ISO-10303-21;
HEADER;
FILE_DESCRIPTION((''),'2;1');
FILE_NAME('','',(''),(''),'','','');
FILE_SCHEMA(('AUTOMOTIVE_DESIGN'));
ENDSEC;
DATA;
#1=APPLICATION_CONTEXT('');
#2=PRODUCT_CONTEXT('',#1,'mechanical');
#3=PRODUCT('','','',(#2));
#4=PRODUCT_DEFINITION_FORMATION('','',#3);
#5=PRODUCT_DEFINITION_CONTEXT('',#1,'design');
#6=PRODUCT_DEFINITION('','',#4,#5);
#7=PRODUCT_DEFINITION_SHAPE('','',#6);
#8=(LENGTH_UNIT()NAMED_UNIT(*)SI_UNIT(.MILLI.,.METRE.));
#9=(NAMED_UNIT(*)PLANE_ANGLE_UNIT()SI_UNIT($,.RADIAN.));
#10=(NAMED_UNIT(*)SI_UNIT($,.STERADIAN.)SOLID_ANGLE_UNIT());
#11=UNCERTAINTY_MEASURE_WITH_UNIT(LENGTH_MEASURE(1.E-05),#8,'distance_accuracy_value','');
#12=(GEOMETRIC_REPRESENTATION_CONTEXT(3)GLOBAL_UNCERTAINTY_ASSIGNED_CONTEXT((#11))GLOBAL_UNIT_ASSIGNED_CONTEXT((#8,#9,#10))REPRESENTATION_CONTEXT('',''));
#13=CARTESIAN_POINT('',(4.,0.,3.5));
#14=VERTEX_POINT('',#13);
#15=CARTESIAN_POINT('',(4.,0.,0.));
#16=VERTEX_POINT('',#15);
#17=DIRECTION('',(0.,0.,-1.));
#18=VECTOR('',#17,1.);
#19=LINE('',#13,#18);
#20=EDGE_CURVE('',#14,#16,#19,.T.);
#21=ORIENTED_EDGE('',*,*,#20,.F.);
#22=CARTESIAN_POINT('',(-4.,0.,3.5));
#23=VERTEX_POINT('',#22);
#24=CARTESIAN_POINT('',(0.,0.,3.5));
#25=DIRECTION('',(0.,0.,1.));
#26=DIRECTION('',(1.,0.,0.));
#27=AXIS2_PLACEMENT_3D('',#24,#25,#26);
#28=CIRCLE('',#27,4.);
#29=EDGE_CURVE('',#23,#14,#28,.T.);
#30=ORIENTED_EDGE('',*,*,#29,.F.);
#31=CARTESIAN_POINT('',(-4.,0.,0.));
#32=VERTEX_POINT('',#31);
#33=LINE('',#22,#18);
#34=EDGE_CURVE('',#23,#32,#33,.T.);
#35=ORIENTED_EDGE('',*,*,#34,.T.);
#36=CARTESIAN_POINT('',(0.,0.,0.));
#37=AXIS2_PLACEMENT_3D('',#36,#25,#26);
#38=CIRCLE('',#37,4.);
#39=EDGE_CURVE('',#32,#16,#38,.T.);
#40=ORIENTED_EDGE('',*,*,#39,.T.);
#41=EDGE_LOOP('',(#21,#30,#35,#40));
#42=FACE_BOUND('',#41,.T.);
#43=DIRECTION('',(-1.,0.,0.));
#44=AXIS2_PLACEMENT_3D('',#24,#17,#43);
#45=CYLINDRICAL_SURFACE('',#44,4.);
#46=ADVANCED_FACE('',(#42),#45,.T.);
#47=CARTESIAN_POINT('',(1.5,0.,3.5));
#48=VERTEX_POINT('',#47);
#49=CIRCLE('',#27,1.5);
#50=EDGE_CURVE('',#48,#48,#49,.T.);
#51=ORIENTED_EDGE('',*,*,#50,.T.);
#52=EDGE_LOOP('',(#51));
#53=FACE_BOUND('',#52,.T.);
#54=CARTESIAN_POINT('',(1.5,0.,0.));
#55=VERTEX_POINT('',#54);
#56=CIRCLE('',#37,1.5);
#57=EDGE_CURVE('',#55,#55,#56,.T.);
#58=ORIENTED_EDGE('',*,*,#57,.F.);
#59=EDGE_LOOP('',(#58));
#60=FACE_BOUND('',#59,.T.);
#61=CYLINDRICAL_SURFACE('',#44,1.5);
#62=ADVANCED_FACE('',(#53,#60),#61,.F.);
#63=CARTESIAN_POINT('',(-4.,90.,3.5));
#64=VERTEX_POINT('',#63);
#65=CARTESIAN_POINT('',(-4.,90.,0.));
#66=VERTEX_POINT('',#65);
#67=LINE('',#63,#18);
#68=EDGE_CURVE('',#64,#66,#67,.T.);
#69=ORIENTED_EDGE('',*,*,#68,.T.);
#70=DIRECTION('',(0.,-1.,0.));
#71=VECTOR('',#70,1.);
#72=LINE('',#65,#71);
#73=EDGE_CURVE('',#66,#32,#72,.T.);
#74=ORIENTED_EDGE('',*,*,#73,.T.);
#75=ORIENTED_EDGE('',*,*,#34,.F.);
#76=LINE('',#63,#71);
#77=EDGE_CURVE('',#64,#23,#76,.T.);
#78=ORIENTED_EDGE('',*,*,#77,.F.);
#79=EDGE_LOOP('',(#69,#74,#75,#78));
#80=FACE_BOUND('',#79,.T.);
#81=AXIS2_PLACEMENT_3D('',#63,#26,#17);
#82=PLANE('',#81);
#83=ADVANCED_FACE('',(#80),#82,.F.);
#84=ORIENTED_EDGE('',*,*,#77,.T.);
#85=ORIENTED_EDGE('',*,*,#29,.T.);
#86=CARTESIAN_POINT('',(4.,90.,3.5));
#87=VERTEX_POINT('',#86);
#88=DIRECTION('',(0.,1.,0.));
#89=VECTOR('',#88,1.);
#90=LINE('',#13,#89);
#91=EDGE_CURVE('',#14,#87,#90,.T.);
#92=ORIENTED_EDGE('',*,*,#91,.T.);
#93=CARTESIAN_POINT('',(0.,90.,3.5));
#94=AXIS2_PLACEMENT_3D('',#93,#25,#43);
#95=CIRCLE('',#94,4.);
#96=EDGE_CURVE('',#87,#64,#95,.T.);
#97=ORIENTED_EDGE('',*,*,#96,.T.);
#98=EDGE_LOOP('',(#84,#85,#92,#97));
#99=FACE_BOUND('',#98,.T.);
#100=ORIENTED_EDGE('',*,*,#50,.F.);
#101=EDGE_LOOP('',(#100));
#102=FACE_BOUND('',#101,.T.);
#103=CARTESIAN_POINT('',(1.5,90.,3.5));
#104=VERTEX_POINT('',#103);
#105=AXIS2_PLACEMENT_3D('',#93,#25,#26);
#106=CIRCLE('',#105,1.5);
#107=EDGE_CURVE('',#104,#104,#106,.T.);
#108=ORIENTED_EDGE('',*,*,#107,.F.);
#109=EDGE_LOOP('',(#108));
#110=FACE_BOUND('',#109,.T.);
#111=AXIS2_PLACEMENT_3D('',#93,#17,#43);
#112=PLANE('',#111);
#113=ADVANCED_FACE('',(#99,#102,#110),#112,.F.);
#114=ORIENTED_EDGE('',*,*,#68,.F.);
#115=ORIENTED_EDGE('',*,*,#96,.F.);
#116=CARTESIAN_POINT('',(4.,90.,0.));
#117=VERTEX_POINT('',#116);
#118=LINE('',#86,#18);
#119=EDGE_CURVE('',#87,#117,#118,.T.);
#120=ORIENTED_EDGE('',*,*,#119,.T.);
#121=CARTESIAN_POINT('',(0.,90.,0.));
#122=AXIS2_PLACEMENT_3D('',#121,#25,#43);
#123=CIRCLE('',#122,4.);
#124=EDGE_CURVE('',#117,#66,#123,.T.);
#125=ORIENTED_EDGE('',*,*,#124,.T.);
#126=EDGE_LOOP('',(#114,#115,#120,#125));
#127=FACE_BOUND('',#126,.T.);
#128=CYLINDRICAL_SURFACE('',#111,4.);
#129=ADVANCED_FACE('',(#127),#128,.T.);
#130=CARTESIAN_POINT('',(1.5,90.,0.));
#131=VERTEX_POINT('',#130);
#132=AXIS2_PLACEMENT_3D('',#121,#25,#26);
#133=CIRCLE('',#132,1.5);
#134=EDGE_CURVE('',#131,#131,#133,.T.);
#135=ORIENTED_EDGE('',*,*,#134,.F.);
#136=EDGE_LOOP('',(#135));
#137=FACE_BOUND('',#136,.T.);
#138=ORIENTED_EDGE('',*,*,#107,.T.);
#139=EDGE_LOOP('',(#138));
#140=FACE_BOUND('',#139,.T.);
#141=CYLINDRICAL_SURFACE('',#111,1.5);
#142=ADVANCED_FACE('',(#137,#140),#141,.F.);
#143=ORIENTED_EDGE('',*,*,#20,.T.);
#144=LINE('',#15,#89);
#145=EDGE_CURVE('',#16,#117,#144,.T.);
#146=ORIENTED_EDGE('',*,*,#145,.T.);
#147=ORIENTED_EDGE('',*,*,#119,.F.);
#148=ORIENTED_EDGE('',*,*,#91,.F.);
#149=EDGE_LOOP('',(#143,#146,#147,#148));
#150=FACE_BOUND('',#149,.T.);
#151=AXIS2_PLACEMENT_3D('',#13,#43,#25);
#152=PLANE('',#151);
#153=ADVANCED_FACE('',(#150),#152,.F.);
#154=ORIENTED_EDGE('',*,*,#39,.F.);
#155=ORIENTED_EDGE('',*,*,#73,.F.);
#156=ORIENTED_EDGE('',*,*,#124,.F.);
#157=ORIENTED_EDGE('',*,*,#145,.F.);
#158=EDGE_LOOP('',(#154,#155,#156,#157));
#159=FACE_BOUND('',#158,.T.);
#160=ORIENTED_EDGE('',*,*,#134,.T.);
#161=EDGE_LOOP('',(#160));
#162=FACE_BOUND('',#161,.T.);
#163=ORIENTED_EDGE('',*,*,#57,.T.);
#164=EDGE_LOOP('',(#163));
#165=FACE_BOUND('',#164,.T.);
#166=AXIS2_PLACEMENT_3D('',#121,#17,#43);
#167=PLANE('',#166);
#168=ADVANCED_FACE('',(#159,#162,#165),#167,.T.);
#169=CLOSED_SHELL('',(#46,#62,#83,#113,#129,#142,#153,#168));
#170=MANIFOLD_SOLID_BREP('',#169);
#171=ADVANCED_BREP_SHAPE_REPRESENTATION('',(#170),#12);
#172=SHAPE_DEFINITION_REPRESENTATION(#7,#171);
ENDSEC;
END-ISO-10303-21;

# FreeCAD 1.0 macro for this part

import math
import FreeCAD as App
import Part
import Sketcher

doc = App.newDocument("Part")
body = doc.addObject("PartDesign::Body", "Body")

# Sketch on XY plane
sketch1 = body.newObject("Sketcher::SketchObject", "Sketch")
sketch1.AttachmentSupport = (doc.getObject("XY_Plane"), [""])
sketch1.MapMode = "FlatFace"
sketch1.addGeometry(Part.LineSegment(App.Vector(-4, 90, 0), App.Vector(-4, 0, 0)), False)
sketch1.addGeometry(Part.ArcOfCircle(Part.Circle(App.Vector(0, 0, 0), App.Vector(0, 0, 1), 4), math.radians(180), math.radians(360)), False)
sketch1.addGeometry(Part.LineSegment(App.Vector(4, 0, 0), App.Vector(4, 90, 0)), False)
sketch1.addGeometry(Part.ArcOfCircle(Part.Circle(App.Vector(0, 90, 0), App.Vector(0, 0, 1), 4), math.radians(0), math.radians(180)), False)
sketch1.addGeometry(Part.Circle(App.Vector(0, 0, 0), App.Vector(0, 0, 1), 1.5), False)
sketch1.addGeometry(Part.Circle(App.Vector(0, 90, 0), App.Vector(0, 0, 1), 1.5), False)
sketch1.addConstraint(Sketcher.Constraint("Tangent", 0, 2, 1, 1))
sketch1.addConstraint(Sketcher.Constraint("Tangent", 1, 2, 2, 1))
sketch1.addConstraint(Sketcher.Constraint("Tangent", 2, 2, 3, 1))
sketch1.addConstraint(Sketcher.Constraint("Tangent", 3, 2, 0, 1))
sketch1.addConstraint(Sketcher.Constraint("Vertical", 0))
sketch1.addConstraint(Sketcher.Constraint("Vertical", 2))
sketch1.addConstraint(Sketcher.Constraint("Coincident", 1, 3, -1, 1))
sketch1.addConstraint(Sketcher.Constraint("Coincident", 4, 3, -1, 1))
sketch1.addConstraint(Sketcher.Constraint("Coincident", 5, 3, 3, 3))
sketch1.addConstraint(Sketcher.Constraint("Equal", 4, 5))
sketch1.addConstraint(Sketcher.Constraint("Diameter", 4, 3.0))
sketch1.addConstraint(Sketcher.Constraint("Radius", 1, 4.0))
sketch1.addConstraint(Sketcher.Constraint("DistanceY", 0, 2, 0, 1, 90.0))
pad1 = body.newObject("PartDesign::Pad", "Pad")
pad1.Profile = sketch1
pad1.Length = 3.5

doc.recompute()
